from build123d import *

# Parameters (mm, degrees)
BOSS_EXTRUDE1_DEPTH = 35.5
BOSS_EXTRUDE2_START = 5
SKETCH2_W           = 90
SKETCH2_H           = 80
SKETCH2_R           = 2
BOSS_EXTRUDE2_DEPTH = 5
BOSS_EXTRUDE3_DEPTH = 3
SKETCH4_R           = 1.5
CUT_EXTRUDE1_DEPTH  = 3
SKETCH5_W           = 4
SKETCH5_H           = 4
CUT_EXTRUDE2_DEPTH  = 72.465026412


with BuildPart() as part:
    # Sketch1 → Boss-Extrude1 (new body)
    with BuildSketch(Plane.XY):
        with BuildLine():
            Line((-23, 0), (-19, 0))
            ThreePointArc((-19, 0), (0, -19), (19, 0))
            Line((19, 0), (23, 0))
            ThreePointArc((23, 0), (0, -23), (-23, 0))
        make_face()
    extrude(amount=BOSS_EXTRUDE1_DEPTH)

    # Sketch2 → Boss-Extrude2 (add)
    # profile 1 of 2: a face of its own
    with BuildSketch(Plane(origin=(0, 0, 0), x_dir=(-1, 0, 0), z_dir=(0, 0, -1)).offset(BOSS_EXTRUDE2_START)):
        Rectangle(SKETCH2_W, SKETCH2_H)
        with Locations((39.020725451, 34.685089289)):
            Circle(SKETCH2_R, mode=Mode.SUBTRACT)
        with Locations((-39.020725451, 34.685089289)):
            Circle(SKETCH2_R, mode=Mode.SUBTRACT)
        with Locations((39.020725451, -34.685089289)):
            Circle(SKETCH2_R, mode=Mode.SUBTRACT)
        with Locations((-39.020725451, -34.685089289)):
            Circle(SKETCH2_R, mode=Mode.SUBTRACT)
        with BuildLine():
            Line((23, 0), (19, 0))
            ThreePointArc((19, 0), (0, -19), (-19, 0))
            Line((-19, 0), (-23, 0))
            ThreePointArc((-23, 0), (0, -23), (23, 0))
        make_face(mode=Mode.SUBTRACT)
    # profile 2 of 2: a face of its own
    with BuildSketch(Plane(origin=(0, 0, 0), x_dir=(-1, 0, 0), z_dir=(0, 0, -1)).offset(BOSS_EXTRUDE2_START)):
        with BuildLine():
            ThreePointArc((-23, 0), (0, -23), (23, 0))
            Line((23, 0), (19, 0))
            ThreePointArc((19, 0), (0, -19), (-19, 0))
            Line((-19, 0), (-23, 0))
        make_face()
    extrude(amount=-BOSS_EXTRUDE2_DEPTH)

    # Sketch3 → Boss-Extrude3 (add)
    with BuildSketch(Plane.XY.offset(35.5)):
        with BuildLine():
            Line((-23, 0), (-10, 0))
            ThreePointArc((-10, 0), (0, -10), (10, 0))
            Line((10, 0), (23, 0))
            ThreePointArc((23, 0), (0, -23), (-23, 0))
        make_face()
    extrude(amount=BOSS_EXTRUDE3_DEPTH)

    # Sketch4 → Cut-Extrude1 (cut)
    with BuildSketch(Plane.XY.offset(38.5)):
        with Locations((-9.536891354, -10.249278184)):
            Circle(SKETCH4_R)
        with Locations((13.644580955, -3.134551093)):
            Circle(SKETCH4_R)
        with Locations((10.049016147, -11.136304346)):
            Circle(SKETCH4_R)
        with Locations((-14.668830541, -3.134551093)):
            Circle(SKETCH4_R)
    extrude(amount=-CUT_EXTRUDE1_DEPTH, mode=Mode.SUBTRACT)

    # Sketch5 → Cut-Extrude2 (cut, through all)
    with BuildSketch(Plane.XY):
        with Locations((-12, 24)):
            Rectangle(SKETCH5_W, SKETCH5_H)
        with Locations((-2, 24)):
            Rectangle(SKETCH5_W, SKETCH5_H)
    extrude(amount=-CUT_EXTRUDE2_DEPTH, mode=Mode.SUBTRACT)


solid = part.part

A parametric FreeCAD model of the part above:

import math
import FreeCAD as App
import Part
import Sketcher

V = App.Vector
Q = App.Units.Quantity

doc = App.newDocument("Part")
body = doc.addObject("PartDesign::Body", "Body")

# Sketch on XY plane
sketch1 = body.newObject("Sketcher::SketchObject", "Sketch")
sketch1.AttachmentSupport = (doc.getObject("XY_Plane"), [""])
sketch1.MapMode = "FlatFace"
sketch1.addGeometry([
    Part.LineSegment(V(-19, 0, 0), V(-23, 0, 0)),
    Part.ArcOfCircle(Part.Circle(V(0, 0, 0), V(0, 0, 1), 23), math.radians(180), math.radians(360)),
    Part.LineSegment(V(23, 0, 0), V(19, 0, 0)),
    Part.ArcOfCircle(Part.Circle(V(0, 0, 0), V(0, 0, 1), 19), math.radians(180), math.radians(360)),
], False)
sketch1.addConstraint([
    Sketcher.Constraint("Coincident", 0, 2, 1, 1),
    Sketcher.Constraint("Coincident", 1, 2, 2, 1),
    Sketcher.Constraint("Coincident", 2, 2, 3, 2),
    Sketcher.Constraint("Coincident", 3, 1, 0, 1),
    Sketcher.Constraint("Horizontal", 0),
    Sketcher.Constraint("Horizontal", 2),
    Sketcher.Constraint("Coincident", 1, 3, -1, 1),
    Sketcher.Constraint("Coincident", 3, 3, -1, 1),
    Sketcher.Constraint("PointOnObject", 0, 2, -1),
    Sketcher.Constraint("PointOnObject", 1, 2, -1),
    Sketcher.Constraint("Radius", 1, Q("23 mm")),
    Sketcher.Constraint("Radius", 3, Q("19 mm")),
])
pad1 = body.newObject("PartDesign::Pad", "Pad")
pad1.Profile = sketch1
pad1.Length = 35.5

# Sketch on XY plane
sketch2 = body.newObject("Sketcher::SketchObject", "Sketch001")
sketch2.AttachmentSupport = (doc.getObject("XY_Plane"), [""])
sketch2.MapMode = "FlatFace"
sketch2.AttachmentOffset = App.Placement(V(0, 0, -5), App.Rotation())
sketch2.addGeometry([
    Part.LineSegment(V(45, 40, 0), V(45, -40, 0)),  # 0
    Part.LineSegment(V(45, -40, 0), V(-45, -40, 0)),  # 1
    Part.LineSegment(V(-45, -40, 0), V(-45, 40, 0)),  # 2
    Part.LineSegment(V(-45, 40, 0), V(45, 40, 0)),  # 3
    Part.Circle(V(39, -34.7, 0), V(0, 0, 1), 2),  # 4
    Part.Circle(V(-39, -34.7, 0), V(0, 0, 1), 2),  # 5
    Part.Circle(V(39, 34.7, 0), V(0, 0, 1), 2),  # 6
    Part.Circle(V(-39, 34.7, 0), V(0, 0, 1), 2),  # 7
], False)
sketch2.addConstraint([
    Sketcher.Constraint("Coincident", 0, 2, 1, 1),
    Sketcher.Constraint("Coincident", 1, 2, 2, 1),
    Sketcher.Constraint("Coincident", 2, 2, 3, 1),
    Sketcher.Constraint("Coincident", 3, 2, 0, 1),
    Sketcher.Constraint("Vertical", 0),
    Sketcher.Constraint("Horizontal", 1),
    Sketcher.Constraint("Vertical", 2),
    Sketcher.Constraint("Horizontal", 3),
    Sketcher.Constraint("Equal", 4, 5),
    Sketcher.Constraint("Equal", 5, 6),
    Sketcher.Constraint("Equal", 6, 7),
    Sketcher.Constraint("Symmetric", 5, 3, 6, 3, -1, 1),
    Sketcher.Constraint("Symmetric", 4, 3, 7, 3, -1, 1),
    Sketcher.Constraint("Symmetric", 0, 2, 2, 2, -1, 1),
    Sketcher.Constraint("Symmetric", 4, 3, 5, 3, -2),
    Sketcher.Constraint("Diameter", 4, Q("4 mm")),
    Sketcher.Constraint("DistanceX", 1, 2, 1, 1, Q("90 mm")),
    Sketcher.Constraint("DistanceY", 0, 2, 0, 1, Q("80 mm")),
    Sketcher.Constraint("DistanceY", 4, 3, -1, 1, Q("34.685089 mm")),
    Sketcher.Constraint("DistanceX", 5, 3, 4, 3, Q("78.041451 mm")),
])
pad2 = body.newObject("PartDesign::Pad", "Pad001")
pad2.Profile = sketch2
pad2.Length = 5

# Sketch on XY plane
sketch3 = body.newObject("Sketcher::SketchObject", "Sketch002")
sketch3.AttachmentSupport = (doc.getObject("XY_Plane"), [""])
sketch3.MapMode = "FlatFace"
sketch3.AttachmentOffset = App.Placement(V(0, 0, 35.5), App.Rotation())
sketch3.addGeometry([
    Part.LineSegment(V(-10, 0, 0), V(-23, 0, 0)),
    Part.ArcOfCircle(Part.Circle(V(0, 0, 0), V(0, 0, 1), 23), math.radians(180), math.radians(360)),
    Part.LineSegment(V(23, 0, 0), V(10, 0, 0)),
    Part.ArcOfCircle(Part.Circle(V(0, 0, 0), V(0, 0, 1), 10), math.radians(180), math.radians(360)),
], False)
sketch3.addConstraint([
    Sketcher.Constraint("Coincident", 0, 2, 1, 1),
    Sketcher.Constraint("Coincident", 1, 2, 2, 1),
    Sketcher.Constraint("Coincident", 2, 2, 3, 2),
    Sketcher.Constraint("Coincident", 3, 1, 0, 1),
    Sketcher.Constraint("Horizontal", 0),
    Sketcher.Constraint("Horizontal", 2),
    Sketcher.Constraint("Coincident", 1, 3, -1, 1),
    Sketcher.Constraint("Coincident", 3, 3, -1, 1),
    Sketcher.Constraint("PointOnObject", 0, 2, -1),
    Sketcher.Constraint("PointOnObject", 1, 2, -1),
    Sketcher.Constraint("Radius", 1, Q("23 mm")),
    Sketcher.Constraint("Radius", 3, Q("10 mm")),
])
pad3 = body.newObject("PartDesign::Pad", "Pad002")
pad3.Profile = sketch3
pad3.Length = 3

# Sketch on XY plane
sketch4 = body.newObject("Sketcher::SketchObject", "Sketch003")
sketch4.AttachmentSupport = (doc.getObject("XY_Plane"), [""])
sketch4.MapMode = "FlatFace"
sketch4.AttachmentOffset = App.Placement(V(0, 0, 38.5), App.Rotation())
sketch4.addGeometry([
    Part.Circle(V(-9.5, -10.2, 0), V(0, 0, 1), 1.5),
    Part.Circle(V(13.6, -3.1, 0), V(0, 0, 1), 1.5),
    Part.Circle(V(10, -11.1, 0), V(0, 0, 1), 1.5),
    Part.Circle(V(-14.7, -3.1, 0), V(0, 0, 1), 1.5),
], False)
sketch4.addConstraint([
    Sketcher.Constraint("Equal", 0, 1),
    Sketcher.Constraint("Equal", 1, 2),
    Sketcher.Constraint("Equal", 2, 3),
    Sketcher.Constraint("Horizontal", 1, 3, 3, 3),
    Sketcher.Constraint("Diameter", 0, Q("3 mm")),
    Sketcher.Constraint("DistanceX", 0, 3, -1, 1, Q("9.536891 mm")),
    Sketcher.Constraint("DistanceY", 0, 3, -1, 1, Q("10.249278 mm")),
    Sketcher.Constraint("DistanceX", -1, 1, 1, 3, Q("13.644581 mm")),
    Sketcher.Constraint("DistanceY", 1, 3, -1, 1, Q("3.134551 mm")),
    Sketcher.Constraint("DistanceX", 3, 3, -1, 1, Q("14.668831 mm")),
    Sketcher.Constraint("DistanceX", -1, 1, 2, 3, Q("10.049016 mm")),
    Sketcher.Constraint("DistanceY", 2, 3, -1, 1, Q("11.136304 mm")),
])
pocket1 = body.newObject("PartDesign::Pocket", "Pocket")
pocket1.Profile = sketch4
pocket1.Length = 3

# Sketch on XY plane
sketch5 = body.newObject("Sketcher::SketchObject", "Sketch004")
sketch5.AttachmentSupport = (doc.getObject("XY_Plane"), [""])
sketch5.MapMode = "FlatFace"
sketch5.addGeometry([
    Part.LineSegment(V(-14, 26, 0), V(-14, 22, 0)),  # 0
    Part.LineSegment(V(-14, 22, 0), V(-10, 22, 0)),  # 1
    Part.LineSegment(V(-10, 22, 0), V(-10, 26, 0)),  # 2
    Part.LineSegment(V(-10, 26, 0), V(-14, 26, 0)),  # 3
    Part.LineSegment(V(-4, 26, 0), V(-4, 22, 0)),  # 4
    Part.LineSegment(V(-4, 22, 0), V(0, 22, 0)),  # 5
    Part.LineSegment(V(0, 22, 0), V(0, 26, 0)),  # 6
    Part.LineSegment(V(0, 26, 0), V(-4, 26, 0)),  # 7
], False)
sketch5.addConstraint([
    Sketcher.Constraint("Coincident", 0, 2, 1, 1),
    Sketcher.Constraint("Coincident", 1, 2, 2, 1),
    Sketcher.Constraint("Coincident", 2, 2, 3, 1),
    Sketcher.Constraint("Coincident", 3, 2, 0, 1),
    Sketcher.Constraint("Coincident", 4, 2, 5, 1),
    Sketcher.Constraint("Coincident", 5, 2, 6, 1),
    Sketcher.Constraint("Coincident", 6, 2, 7, 1),
    Sketcher.Constraint("Coincident", 7, 2, 4, 1),
    Sketcher.Constraint("Vertical", 0),
    Sketcher.Constraint("Horizontal", 1),
    Sketcher.Constraint("Vertical", 2),
    Sketcher.Constraint("Horizontal", 3),
    Sketcher.Constraint("Vertical", 4),
    Sketcher.Constraint("Horizontal", 5),
    Sketcher.Constraint("Vertical", 6),
    Sketcher.Constraint("Horizontal", 7),
    Sketcher.Constraint("PointOnObject", 5, 2, -2),
    Sketcher.Constraint("Horizontal", 1, 2, 4, 2),
    Sketcher.Constraint("Horizontal", 3, 2, 6, 2),
    Sketcher.Constraint("Equal", 3, 5),
    Sketcher.Constraint("Equal", 7, 0),
    Sketcher.Constraint("DistanceX", 1, 1, 1, 2, Q("4 mm")),
    Sketcher.Constraint("DistanceX", 0, 2, -1, 1, Q("14 mm")),
    Sketcher.Constraint("DistanceY", -1, 1, 0, 2, Q("22 mm")),
])
pocket2 = body.newObject("PartDesign::Pocket", "Pocket001")
pocket2.Profile = sketch5
pocket2.Type = "ThroughAll"

doc.recompute()
